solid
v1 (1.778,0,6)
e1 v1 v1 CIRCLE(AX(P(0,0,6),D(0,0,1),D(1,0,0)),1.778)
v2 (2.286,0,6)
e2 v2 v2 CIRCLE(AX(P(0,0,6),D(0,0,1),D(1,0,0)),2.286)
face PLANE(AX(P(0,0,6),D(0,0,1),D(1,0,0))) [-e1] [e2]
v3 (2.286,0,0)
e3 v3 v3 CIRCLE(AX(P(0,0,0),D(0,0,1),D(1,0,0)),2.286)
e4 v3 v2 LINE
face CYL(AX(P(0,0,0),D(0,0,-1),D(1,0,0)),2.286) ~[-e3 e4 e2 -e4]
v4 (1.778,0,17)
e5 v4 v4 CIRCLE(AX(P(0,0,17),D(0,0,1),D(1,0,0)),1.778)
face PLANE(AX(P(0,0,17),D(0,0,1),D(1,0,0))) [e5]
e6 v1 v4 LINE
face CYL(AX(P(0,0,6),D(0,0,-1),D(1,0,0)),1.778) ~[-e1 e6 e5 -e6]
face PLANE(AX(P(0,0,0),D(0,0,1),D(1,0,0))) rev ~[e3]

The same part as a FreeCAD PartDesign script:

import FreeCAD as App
import Part
import Sketcher

doc = App.newDocument("Part")
body = doc.addObject("PartDesign::Body", "Body")

sketch1 = doc.addObject("Sketcher::SketchObject", "Sketch")
body.addObject(sketch1)
sketch1.AttachmentSupport = (doc.XY_Plane, [""])
sketch1.MapMode = "FlatFace"
sketch1.addGeometry(Part.Circle(App.Vector(0, 0, 0), App.Vector(0, 0, 1), 2.286), False)
sketch1.addConstraint(Sketcher.Constraint("Coincident", 0, 3, -1, 1))
sketch1.addConstraint(Sketcher.Constraint("Diameter", 0, 4.572))
pad1 = doc.addObject("PartDesign::Pad", "Pad")
body.addObject(pad1)
pad1.Profile = sketch1
pad1.Length = 6

sketch2 = doc.addObject("Sketcher::SketchObject", "Sketch001")
body.addObject(sketch2)
sketch2.AttachmentSupport = (doc.XY_Plane, [""])
sketch2.MapMode = "FlatFace"
sketch2.AttachmentOffset = App.Placement(App.Vector(0, 0, 6), App.Rotation())
sketch2.addGeometry(Part.Circle(App.Vector(0, 0, 0), App.Vector(0, 0, 1), 1.778), False)
sketch2.addConstraint(Sketcher.Constraint("Coincident", 0, 3, -1, 1))
sketch2.addConstraint(Sketcher.Constraint("Diameter", 0, 3.556))
pad2 = doc.addObject("PartDesign::Pad", "Pad001")
body.addObject(pad2)
pad2.Profile = sketch2
pad2.Length = 11

doc.recompute()
